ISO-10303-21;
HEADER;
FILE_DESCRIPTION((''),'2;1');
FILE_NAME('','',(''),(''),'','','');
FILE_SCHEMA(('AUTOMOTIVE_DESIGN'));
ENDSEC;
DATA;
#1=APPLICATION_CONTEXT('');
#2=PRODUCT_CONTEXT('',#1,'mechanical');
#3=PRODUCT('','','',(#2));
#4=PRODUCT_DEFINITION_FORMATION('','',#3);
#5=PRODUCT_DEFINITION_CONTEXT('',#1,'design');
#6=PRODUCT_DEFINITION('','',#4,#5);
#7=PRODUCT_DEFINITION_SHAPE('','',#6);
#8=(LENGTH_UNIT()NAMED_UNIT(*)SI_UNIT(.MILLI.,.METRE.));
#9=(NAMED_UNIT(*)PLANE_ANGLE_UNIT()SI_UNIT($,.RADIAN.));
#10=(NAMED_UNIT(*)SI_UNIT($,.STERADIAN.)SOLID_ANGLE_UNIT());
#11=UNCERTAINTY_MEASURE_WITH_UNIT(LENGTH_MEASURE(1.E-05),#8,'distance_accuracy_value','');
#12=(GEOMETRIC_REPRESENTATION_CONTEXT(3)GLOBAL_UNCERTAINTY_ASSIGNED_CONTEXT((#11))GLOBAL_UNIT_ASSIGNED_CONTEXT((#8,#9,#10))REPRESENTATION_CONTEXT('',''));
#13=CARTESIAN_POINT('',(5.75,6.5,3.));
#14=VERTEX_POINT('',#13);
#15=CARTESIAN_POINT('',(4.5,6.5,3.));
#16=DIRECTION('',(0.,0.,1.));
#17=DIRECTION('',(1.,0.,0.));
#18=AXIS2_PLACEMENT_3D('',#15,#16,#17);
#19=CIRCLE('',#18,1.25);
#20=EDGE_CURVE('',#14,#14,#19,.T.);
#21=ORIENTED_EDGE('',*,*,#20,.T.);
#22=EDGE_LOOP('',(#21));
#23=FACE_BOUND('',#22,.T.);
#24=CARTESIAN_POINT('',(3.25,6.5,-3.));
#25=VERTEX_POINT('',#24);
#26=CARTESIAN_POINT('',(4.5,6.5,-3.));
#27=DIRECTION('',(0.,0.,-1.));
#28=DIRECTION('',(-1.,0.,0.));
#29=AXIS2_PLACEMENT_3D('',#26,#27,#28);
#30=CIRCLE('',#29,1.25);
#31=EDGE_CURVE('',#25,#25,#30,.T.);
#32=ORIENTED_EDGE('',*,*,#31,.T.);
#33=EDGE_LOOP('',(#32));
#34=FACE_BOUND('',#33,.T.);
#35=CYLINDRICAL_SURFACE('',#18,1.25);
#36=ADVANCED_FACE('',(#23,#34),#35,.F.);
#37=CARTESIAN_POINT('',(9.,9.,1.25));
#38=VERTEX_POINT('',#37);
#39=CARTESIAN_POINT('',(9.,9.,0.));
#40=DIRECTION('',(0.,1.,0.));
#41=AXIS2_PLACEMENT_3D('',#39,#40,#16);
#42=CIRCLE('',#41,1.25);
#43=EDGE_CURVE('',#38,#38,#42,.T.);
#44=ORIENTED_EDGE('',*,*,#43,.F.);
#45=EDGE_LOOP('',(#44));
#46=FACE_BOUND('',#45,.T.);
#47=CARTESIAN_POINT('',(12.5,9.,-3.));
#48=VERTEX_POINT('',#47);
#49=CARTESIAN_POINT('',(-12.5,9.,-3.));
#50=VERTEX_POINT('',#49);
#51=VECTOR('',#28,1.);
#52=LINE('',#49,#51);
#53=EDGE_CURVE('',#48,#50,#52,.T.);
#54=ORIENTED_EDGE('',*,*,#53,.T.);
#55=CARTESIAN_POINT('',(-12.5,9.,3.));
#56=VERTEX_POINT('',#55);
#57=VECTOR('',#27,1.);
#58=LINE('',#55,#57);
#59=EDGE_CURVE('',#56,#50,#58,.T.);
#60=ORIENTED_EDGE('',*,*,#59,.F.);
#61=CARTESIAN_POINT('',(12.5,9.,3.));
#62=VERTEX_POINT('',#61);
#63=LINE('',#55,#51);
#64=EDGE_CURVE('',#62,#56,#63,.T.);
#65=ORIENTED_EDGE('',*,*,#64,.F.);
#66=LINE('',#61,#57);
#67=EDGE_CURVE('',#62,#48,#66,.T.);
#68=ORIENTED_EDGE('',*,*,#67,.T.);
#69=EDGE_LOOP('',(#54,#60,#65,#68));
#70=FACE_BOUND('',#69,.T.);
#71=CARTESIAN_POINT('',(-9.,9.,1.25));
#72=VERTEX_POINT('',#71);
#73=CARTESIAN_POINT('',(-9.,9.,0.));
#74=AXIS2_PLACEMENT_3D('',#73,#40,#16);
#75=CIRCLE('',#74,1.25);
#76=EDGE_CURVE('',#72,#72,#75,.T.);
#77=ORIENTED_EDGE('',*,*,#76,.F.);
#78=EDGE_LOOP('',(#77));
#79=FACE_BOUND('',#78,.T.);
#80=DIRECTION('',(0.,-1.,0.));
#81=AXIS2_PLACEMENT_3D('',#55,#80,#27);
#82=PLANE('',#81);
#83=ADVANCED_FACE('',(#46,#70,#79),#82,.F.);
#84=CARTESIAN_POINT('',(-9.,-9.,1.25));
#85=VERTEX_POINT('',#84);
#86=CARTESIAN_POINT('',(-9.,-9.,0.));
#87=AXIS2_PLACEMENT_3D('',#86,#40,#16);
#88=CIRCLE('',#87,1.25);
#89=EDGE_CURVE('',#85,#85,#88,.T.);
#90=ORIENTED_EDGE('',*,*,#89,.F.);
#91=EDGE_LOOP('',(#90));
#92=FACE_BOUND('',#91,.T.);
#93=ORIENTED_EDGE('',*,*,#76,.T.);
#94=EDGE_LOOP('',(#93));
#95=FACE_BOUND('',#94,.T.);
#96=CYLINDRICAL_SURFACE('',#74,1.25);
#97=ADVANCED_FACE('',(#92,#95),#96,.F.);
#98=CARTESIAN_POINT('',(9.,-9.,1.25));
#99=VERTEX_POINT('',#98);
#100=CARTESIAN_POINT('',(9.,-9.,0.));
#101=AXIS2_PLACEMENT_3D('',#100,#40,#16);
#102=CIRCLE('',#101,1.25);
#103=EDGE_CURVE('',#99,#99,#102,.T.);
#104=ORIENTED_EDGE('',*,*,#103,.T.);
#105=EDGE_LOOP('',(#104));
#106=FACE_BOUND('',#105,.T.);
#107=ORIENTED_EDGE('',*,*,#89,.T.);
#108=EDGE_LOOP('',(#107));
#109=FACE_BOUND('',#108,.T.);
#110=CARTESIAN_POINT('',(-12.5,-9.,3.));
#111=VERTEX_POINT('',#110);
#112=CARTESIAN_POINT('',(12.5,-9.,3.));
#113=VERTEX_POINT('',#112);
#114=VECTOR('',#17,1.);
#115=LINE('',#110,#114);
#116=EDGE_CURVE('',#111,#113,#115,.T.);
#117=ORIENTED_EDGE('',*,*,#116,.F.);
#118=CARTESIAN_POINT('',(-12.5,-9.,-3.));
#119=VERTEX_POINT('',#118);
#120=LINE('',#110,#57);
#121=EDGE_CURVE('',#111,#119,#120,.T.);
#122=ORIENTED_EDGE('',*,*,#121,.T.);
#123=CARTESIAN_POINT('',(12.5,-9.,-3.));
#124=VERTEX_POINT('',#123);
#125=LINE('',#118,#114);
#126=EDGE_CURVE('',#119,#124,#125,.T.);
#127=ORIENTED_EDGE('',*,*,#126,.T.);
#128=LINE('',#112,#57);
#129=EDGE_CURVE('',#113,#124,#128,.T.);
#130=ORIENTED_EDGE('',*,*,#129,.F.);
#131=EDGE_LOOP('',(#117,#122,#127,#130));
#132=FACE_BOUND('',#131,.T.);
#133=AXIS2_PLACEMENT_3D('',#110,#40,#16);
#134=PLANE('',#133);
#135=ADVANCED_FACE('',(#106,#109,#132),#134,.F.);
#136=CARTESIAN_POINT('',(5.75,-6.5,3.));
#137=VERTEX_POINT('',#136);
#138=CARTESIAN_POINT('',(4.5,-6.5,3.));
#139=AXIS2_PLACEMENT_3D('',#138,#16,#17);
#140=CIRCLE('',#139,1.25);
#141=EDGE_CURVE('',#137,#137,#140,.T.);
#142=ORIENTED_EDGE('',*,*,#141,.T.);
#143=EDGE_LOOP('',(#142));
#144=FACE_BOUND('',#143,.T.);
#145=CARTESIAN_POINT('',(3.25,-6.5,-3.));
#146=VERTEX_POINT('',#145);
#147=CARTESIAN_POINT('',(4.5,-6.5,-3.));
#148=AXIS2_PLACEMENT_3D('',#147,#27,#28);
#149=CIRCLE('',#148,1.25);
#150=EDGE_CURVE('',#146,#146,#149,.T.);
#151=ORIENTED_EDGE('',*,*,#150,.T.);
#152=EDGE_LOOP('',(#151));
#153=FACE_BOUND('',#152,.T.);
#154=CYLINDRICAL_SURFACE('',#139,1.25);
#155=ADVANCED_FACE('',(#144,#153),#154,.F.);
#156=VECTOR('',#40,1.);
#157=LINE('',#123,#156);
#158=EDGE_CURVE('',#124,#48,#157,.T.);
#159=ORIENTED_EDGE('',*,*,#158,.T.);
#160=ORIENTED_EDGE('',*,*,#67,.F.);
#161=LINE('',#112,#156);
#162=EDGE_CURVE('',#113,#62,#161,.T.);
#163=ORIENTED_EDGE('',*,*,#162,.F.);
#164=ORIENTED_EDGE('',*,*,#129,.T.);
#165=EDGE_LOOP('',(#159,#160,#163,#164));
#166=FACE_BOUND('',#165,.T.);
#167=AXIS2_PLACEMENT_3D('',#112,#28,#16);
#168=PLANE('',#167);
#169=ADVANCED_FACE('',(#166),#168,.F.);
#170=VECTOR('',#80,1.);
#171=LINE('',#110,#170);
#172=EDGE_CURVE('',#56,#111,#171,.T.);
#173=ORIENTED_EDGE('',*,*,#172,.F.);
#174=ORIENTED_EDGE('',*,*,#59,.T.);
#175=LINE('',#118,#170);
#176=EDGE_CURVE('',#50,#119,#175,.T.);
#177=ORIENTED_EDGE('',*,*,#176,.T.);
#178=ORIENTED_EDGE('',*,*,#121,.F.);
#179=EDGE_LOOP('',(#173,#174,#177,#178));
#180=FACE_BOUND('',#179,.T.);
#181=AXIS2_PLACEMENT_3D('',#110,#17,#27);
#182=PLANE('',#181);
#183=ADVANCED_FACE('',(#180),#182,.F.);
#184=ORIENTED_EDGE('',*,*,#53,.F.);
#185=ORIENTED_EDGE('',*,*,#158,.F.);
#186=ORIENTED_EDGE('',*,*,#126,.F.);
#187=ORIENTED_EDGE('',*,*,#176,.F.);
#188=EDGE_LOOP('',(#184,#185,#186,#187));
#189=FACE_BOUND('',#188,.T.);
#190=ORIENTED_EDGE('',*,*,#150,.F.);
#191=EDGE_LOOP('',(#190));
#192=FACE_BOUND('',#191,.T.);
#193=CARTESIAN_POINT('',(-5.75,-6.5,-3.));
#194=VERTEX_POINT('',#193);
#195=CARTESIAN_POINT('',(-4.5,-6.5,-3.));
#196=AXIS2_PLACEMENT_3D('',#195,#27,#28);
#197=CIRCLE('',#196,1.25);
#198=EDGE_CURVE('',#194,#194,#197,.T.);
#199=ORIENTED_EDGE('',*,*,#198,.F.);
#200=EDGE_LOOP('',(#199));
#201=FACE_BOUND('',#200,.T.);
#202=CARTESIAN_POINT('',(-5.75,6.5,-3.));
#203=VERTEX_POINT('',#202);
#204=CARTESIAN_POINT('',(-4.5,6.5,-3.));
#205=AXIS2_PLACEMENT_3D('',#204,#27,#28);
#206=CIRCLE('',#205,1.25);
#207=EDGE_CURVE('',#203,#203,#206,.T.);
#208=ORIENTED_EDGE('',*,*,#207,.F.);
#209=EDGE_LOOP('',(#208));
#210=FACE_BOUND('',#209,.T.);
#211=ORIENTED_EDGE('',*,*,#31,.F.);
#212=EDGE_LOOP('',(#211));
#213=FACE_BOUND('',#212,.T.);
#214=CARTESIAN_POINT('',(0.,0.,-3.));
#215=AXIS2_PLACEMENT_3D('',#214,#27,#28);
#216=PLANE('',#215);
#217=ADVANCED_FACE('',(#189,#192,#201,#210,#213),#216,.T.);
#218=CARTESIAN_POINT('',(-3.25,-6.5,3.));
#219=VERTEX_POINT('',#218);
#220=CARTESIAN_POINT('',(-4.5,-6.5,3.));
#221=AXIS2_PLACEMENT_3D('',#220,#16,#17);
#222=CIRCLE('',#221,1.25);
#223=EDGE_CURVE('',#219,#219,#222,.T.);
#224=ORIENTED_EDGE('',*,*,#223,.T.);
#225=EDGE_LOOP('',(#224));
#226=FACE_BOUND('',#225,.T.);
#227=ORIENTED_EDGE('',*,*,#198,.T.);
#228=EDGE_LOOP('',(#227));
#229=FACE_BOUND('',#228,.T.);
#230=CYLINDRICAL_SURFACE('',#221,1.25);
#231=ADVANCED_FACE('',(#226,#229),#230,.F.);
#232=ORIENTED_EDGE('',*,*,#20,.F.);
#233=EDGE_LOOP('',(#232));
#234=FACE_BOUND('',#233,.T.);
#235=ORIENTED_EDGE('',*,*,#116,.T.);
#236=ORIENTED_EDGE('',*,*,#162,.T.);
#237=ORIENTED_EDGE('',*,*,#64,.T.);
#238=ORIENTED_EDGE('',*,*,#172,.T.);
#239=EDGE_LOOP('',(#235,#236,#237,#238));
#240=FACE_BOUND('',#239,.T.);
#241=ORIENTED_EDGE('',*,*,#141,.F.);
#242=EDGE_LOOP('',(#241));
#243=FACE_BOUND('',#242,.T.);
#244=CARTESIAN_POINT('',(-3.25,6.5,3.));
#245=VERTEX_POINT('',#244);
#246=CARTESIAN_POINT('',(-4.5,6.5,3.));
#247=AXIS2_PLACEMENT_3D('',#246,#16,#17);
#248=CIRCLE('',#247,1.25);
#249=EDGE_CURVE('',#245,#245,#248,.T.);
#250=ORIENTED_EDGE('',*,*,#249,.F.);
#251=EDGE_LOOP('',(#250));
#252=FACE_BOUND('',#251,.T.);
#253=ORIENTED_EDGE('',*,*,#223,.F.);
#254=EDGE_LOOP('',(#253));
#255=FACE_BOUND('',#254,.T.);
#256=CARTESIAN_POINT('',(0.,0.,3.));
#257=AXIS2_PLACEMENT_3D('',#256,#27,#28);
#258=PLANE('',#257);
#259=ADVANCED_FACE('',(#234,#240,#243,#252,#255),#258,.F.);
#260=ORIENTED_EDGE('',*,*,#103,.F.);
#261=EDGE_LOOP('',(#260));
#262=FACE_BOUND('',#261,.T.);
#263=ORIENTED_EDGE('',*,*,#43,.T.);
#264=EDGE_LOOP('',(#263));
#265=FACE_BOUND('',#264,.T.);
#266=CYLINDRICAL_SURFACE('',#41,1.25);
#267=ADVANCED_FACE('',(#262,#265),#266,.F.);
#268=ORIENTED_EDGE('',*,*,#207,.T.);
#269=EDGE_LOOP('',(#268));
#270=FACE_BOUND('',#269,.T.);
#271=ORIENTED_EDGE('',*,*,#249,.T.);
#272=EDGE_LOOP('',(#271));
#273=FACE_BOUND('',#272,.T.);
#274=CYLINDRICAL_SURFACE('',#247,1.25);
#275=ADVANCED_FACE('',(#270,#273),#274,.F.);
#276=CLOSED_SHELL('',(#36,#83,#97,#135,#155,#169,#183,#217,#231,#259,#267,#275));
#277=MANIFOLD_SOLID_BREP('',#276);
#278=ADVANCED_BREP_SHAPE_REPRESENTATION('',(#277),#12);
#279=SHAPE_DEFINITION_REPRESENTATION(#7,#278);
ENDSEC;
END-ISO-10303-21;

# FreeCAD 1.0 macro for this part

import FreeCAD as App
import Part
import Sketcher

V = App.Vector
Q = App.Units.Quantity


def add_polygon(sketch, points):
    """Adds a closed chain of lines whose ends are joined by coincident constraints."""
    first, n = sketch.GeometryCount, len(points)
    for a, b in zip(points, points[1:] + points[:1]):
        sketch.addGeometry(Part.LineSegment(App.Vector(*a, 0), App.Vector(*b, 0)), False)
    for i in range(n):
        sketch.addConstraint(Sketcher.Constraint("Coincident", first + i, 2, first + (i + 1) % n, 1))

doc = App.newDocument("Part")
body = doc.addObject("PartDesign::Body", "Body")

# Sketch on XY plane
sketch1 = body.newObject("Sketcher::SketchObject", "Sketch")
sketch1.AttachmentSupport = (doc.getObject("XY_Plane"), [""])
sketch1.MapMode = "FlatFace"
add_polygon(sketch1, [(-12.5, 9), (-12.5, -9), (12.5, -9), (12.5, 9)])  # lines 0-3
sketch1.addConstraint(Sketcher.Constraint("Vertical", 0))
sketch1.addConstraint(Sketcher.Constraint("Horizontal", 1))
sketch1.addConstraint(Sketcher.Constraint("Vertical", 2))
sketch1.addConstraint(Sketcher.Constraint("Horizontal", 3))
sketch1.addConstraint(Sketcher.Constraint("Symmetric", 0, 2, 2, 2, -1, 1))
sketch1.addConstraint(Sketcher.Constraint("DistanceX", 1, 1, 1, 2, Q("25 mm")))
sketch1.addConstraint(Sketcher.Constraint("DistanceY", 0, 2, 0, 1, Q("18 mm")))
pad1 = body.newObject("PartDesign::Pad", "Pad")
pad1.Profile = sketch1
pad1.Length = 6
pad1.Midplane = True

# Sketch on XZ plane
sketch2 = body.newObject("Sketcher::SketchObject", "Sketch001")
sketch2.AttachmentSupport = (doc.getObject("XZ_Plane"), [""])
sketch2.MapMode = "FlatFace"
sketch2.AttachmentOffset = App.Placement(V(0, 0, -9), App.Rotation())
sketch2.addGeometry(Part.Circle(V(-9, 0, 0), V(0, 0, 1), 1.25), False)
sketch2.addGeometry(Part.Circle(V(9, 0, 0), V(0, 0, 1), 1.25), False)
sketch2.addConstraint(Sketcher.Constraint("Equal", 0, 1))
sketch2.addConstraint(Sketcher.Constraint("Symmetric", 0, 3, 1, 3, -1, 1))
sketch2.addConstraint(Sketcher.Constraint("PointOnObject", 0, 3, -1))
sketch2.addConstraint(Sketcher.Constraint("Diameter", 0, Q("2.5 mm")))
sketch2.addConstraint(Sketcher.Constraint("DistanceX", 0, 3, -1, 1, Q("9 mm")))
doc.recompute()
hole = body.newObject("PartDesign::Hole", "Hole")
hole.Profile = sketch2
hole.ThreadType = "None"
hole.Diameter = 2.5
hole.DepthType = "ThroughAll"
hole.Reversed = True

# Sketch on XY plane
sketch3 = body.newObject("Sketcher::SketchObject", "Sketch002")
sketch3.AttachmentSupport = (doc.getObject("XY_Plane"), [""])
sketch3.MapMode = "FlatFace"
sketch3.AttachmentOffset = App.Placement(V(0, 0, 3), App.Rotation())
sketch3.addGeometry(Part.Circle(V(-4.5, -6.5, 0), V(0, 0, 1), 1.25), False)
sketch3.addGeometry(Part.Circle(V(4.5, -6.5, 0), V(0, 0, 1), 1.25), False)
sketch3.addGeometry(Part.Circle(V(4.5, 6.5, 0), V(0, 0, 1), 1.25), False)
sketch3.addGeometry(Part.Circle(V(-4.5, 6.5, 0), V(0, 0, 1), 1.25), False)
sketch3.addConstraint(Sketcher.Constraint("Equal", 0, 1))
sketch3.addConstraint(Sketcher.Constraint("Equal", 1, 2))
sketch3.addConstraint(Sketcher.Constraint("Equal", 2, 3))
sketch3.addConstraint(Sketcher.Constraint("Symmetric", 0, 3, 2, 3, -1, 1))
sketch3.addConstraint(Sketcher.Constraint("Symmetric", 1, 3, 3, 3, -1, 1))
sketch3.addConstraint(Sketcher.Constraint("Symmetric", 0, 3, 1, 3, -2))
sketch3.addConstraint(Sketcher.Constraint("Diameter", 0, Q("2.5 mm")))
sketch3.addConstraint(Sketcher.Constraint("DistanceX", 0, 3, 1, 3, Q("9 mm")))
sketch3.addConstraint(Sketcher.Constraint("DistanceY", 1, 3, 2, 3, Q("13 mm")))
doc.recompute()
hole2 = body.newObject("PartDesign::Hole", "Hole001")
hole2.Profile = sketch3
hole2.ThreadType = "None"
hole2.Diameter = 2.5
hole2.DepthType = "Dimension"
hole2.Depth = 8.5
hole2.DrillPoint = "Angled"
hole2.DrillPointAngle = 118

doc.recompute()
